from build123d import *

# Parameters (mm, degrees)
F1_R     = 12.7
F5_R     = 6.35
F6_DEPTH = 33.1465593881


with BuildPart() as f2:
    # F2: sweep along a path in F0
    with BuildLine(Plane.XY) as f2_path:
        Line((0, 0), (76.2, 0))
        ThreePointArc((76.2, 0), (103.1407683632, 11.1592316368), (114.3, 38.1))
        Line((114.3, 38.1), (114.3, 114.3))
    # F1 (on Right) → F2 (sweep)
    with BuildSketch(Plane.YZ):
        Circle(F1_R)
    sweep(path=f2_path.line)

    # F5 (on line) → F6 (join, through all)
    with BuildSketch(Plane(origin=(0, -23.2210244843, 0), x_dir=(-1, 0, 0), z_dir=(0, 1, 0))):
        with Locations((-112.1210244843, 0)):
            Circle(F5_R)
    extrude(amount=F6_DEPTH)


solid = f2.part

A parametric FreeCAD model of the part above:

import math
import FreeCAD as App
import Part
import Sketcher
Q = App.Units.Quantity

doc = App.newDocument("Part")
params = doc.addObject("Spreadsheet::Sheet", "Params")
for row, (alias, value) in enumerate([
    ("sketch1_diameter", "1 in"),
    ("sketch2_radius", "1.5 in"),
    ("sketch2_width", "3 in"),
    ("sketch3_diameter", "0.5 in"),
], start=1):
    params.set(f"A{row}", alias)
    params.set(f"B{row}", "=" + value)
    params.setAlias(f"B{row}", alias)

body = doc.addObject("PartDesign::Body", "Body")

sketch1 = doc.addObject("Sketcher::SketchObject", "Sketch")
body.addObject(sketch1)
sketch1.AttachmentSupport = (doc.YZ_Plane, [""])
sketch1.MapMode = "FlatFace"
sketch1.addGeometry(Part.Circle(App.Vector(0, 0, 0), App.Vector(0, 0, 1), 12.7), False)
sketch1.addConstraint([
    Sketcher.Constraint("Coincident", 0, 3, -1, 1),
    Sketcher.Constraint("Diameter", 0, Q("1 in")),
])
sketch1.setExpression("Constraints[1]", "Params.sketch1_diameter")

sketch2 = doc.addObject("Sketcher::SketchObject", "Sketch001")
body.addObject(sketch2)
sketch2.AttachmentSupport = (doc.XY_Plane, [""])
sketch2.MapMode = "FlatFace"
sketch2.addGeometry([
    Part.LineSegment(App.Vector(0, 0, 0), App.Vector(76.2, 0, 0)),
    Part.ArcOfCircle(Part.Circle(App.Vector(76.2, 38.1, 0), App.Vector(0, 0, 1), 38.1), math.radians(-90), math.radians(0)),
    Part.LineSegment(App.Vector(114.3, 38.1, 0), App.Vector(114.3, 114.3, 0)),
], False)
sketch2.addConstraint([
    Sketcher.Constraint("Tangent", 0, 2, 1, 1),
    Sketcher.Constraint("Tangent", 1, 2, 2, 1),
    Sketcher.Constraint("Horizontal", 0),
    Sketcher.Constraint("Vertical", 2),
    Sketcher.Constraint("Coincident", 0, 1, -1, 1),
    Sketcher.Constraint("Equal", 0, 2),
    Sketcher.Constraint("Radius", 1, Q("1.5 in")),
    Sketcher.Constraint("DistanceX", 0, 1, 0, 2, Q("3 in")),
])
sketch2.setExpression("Constraints[6]", "Params.sketch2_radius")
sketch2.setExpression("Constraints[7]", "Params.sketch2_width")
doc.recompute()

additivepipe = doc.addObject("PartDesign::AdditivePipe", "AdditivePipe")
body.addObject(additivepipe)
additivepipe.Profile = sketch1
additivepipe.Spine = (sketch2, ["Edge1", "Edge2", "Edge3"])

sketch3 = doc.addObject("Sketcher::SketchObject", "Sketch002")
body.addObject(sketch3)
sketch3.AttachmentSupport = (doc.XZ_Plane, [""])
sketch3.MapMode = "FlatFace"
sketch3.AttachmentOffset = App.Placement(App.Vector(0, 0, 23.221024), App.Rotation())
sketch3.addGeometry(Part.Circle(App.Vector(112.121024, 0, 0), App.Vector(0, 0, 1), 6.35), False)
sketch3.addConstraint([
    Sketcher.Constraint("PointOnObject", 0, 3, -1),
    Sketcher.Constraint("Diameter", 0, Q("0.5 in")),
    Sketcher.Constraint("DistanceX", -1, 1, 0, 3, Q("112.121024 mm")),
])
sketch3.setExpression("Constraints[1]", "Params.sketch3_diameter")
pad1 = doc.addObject("PartDesign::Pad", "Pad")
body.addObject(pad1)
pad1.Profile = sketch3
pad1.Type = "UpToLast"
pad1.Reversed = True

doc.recompute()
